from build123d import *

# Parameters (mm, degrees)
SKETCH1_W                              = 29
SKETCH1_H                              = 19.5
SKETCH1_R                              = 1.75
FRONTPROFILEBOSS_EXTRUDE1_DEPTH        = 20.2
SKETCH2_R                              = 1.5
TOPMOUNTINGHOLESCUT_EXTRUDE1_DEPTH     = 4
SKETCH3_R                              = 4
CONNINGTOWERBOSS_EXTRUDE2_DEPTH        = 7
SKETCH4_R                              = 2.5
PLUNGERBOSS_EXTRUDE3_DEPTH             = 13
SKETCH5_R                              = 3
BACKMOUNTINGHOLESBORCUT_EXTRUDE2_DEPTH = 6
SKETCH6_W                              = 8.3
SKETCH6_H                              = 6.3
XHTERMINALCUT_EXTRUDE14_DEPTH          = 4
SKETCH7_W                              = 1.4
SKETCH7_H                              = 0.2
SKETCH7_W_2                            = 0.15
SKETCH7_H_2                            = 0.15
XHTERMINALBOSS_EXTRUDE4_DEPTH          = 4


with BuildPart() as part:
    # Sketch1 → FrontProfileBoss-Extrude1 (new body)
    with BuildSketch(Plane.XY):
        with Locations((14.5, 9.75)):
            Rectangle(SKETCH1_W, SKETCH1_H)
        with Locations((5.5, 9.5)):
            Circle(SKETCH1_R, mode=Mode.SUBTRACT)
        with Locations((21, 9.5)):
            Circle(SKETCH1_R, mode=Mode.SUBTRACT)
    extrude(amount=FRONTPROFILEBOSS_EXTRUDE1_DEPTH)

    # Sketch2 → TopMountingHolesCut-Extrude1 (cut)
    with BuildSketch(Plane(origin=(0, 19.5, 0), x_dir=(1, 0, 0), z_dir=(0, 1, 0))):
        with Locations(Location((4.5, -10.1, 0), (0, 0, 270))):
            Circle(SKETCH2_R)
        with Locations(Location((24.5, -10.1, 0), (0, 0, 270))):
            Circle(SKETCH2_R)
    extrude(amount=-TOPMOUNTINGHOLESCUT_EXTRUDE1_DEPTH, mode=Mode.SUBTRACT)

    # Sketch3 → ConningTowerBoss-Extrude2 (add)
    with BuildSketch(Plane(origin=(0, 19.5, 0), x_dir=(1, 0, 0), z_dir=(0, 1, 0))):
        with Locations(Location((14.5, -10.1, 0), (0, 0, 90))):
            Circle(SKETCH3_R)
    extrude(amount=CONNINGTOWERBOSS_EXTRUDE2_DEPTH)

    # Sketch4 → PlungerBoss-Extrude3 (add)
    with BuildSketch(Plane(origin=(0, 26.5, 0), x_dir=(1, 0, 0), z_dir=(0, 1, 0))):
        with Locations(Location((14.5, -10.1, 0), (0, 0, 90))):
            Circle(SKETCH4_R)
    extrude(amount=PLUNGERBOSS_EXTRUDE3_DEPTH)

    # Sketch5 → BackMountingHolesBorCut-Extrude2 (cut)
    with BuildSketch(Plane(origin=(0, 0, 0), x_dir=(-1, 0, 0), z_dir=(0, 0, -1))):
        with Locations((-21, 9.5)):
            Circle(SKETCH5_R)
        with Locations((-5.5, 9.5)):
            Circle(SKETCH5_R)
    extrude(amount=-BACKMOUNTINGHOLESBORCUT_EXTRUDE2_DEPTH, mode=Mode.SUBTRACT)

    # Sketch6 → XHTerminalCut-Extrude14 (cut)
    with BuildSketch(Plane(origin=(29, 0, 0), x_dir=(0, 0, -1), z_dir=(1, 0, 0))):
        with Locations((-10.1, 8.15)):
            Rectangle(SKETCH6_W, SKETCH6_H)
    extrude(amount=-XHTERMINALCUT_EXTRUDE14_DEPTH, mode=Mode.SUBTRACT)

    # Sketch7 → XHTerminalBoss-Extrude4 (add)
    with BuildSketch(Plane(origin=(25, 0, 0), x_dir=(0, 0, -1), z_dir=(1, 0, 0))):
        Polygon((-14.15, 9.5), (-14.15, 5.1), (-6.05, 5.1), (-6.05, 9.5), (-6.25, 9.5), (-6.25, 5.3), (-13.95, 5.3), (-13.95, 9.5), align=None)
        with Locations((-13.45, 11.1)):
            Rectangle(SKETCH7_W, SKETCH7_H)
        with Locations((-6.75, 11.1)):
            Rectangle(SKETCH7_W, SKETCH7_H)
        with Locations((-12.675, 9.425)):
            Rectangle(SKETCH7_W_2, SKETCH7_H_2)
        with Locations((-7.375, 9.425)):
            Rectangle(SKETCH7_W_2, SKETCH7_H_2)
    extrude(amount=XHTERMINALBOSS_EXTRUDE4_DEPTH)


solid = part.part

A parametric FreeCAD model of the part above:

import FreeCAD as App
import Part
import Sketcher
from FreeCAD import Vector

doc = App.newDocument("Part")
body = doc.addObject("PartDesign::Body", "Body")

sketch1 = body.newObject("Sketcher::SketchObject", "Sketch")
sketch1.AttachmentSupport = (doc.getObject("XY_Plane"), [""])
sketch1.MapMode = "FlatFace"
sketch1.addGeometry([
    Part.LineSegment(Vector(0, 19.5, 0), Vector(0, 0, 0)),
    Part.LineSegment(Vector(0, 0, 0), Vector(29, 0, 0)),
    Part.LineSegment(Vector(29, 0, 0), Vector(29, 19.5, 0)),
    Part.LineSegment(Vector(29, 19.5, 0), Vector(0, 19.5, 0)),
    Part.Circle(Vector(5.5, 9.5, 0), Vector(0, 0, 1), 1.8),
    Part.Circle(Vector(21, 9.5, 0), Vector(0, 0, 1), 1.8),
], False)
sketch1.addConstraint([
    Sketcher.Constraint("Coincident", 0, 2, 1, 1),
    Sketcher.Constraint("Coincident", 1, 2, 2, 1),
    Sketcher.Constraint("Coincident", 2, 2, 3, 1),
    Sketcher.Constraint("Coincident", 3, 2, 0, 1),
    Sketcher.Constraint("Vertical", 0),
    Sketcher.Constraint("Horizontal", 1),
    Sketcher.Constraint("Vertical", 2),
    Sketcher.Constraint("Horizontal", 3),
    Sketcher.Constraint("Coincident", 0, 2, -1, 1),
    Sketcher.Constraint("Equal", 4, 5),
    Sketcher.Constraint("Horizontal", 4, 3, 5, 3),
    Sketcher.Constraint("Diameter", 4, 3.5),
    Sketcher.Constraint("DistanceX", 1, 1, 1, 2, 29.0),
    Sketcher.Constraint("DistanceY", 0, 2, 0, 1, 19.5),
    Sketcher.Constraint("DistanceX", -1, 1, 5, 3, 21.0),
    Sketcher.Constraint("DistanceY", 5, 3, 2, 2, 10.0),
    Sketcher.Constraint("DistanceX", -1, 1, 4, 3, 5.5),
])
pad1 = body.newObject("PartDesign::Pad", "Pad")
pad1.Profile = sketch1
pad1.Length = 20.2

sketch2 = body.newObject("Sketcher::SketchObject", "Sketch001")
sketch2.AttachmentSupport = (doc.getObject("XZ_Plane"), [""])
sketch2.MapMode = "FlatFace"
sketch2.AttachmentOffset = App.Placement(Vector(0, 0, -19.5), App.Rotation())
sketch2.addGeometry([
    Part.Circle(Vector(4.5, 10.1, 0), Vector(0, 0, 1), 1.5),
    Part.Circle(Vector(24.5, 10.1, 0), Vector(0, 0, 1), 1.5),
], False)
sketch2.addConstraint([
    Sketcher.Constraint("Equal", 0, 1),
    Sketcher.Constraint("Horizontal", 0, 3, 1, 3),
    Sketcher.Constraint("Diameter", 0, 3.0),
    Sketcher.Constraint("DistanceX", 0, 3, 1, 3, 20.0),
    Sketcher.Constraint("DistanceX", -1, 1, 0, 3, 4.5),
    Sketcher.Constraint("DistanceY", -1, 1, 0, 3, 10.1),
])
pocket1 = body.newObject("PartDesign::Pocket", "Pocket")
pocket1.Profile = sketch2
pocket1.Length = 4
pocket1.Reversed = True

sketch3 = body.newObject("Sketcher::SketchObject", "Sketch002")
sketch3.AttachmentSupport = (doc.getObject("XZ_Plane"), [""])
sketch3.MapMode = "FlatFace"
sketch3.AttachmentOffset = App.Placement(Vector(0, 0, -19.5), App.Rotation())
sketch3.addGeometry(Part.Circle(Vector(14.5, 10.1, 0), Vector(0, 0, 1), 4), False)
sketch3.addConstraint([
    Sketcher.Constraint("Diameter", 0, 8.0),
    Sketcher.Constraint("DistanceX", -1, 1, 0, 3, 14.5),
    Sketcher.Constraint("DistanceY", -1, 1, 0, 3, 10.1),
])
pad2 = body.newObject("PartDesign::Pad", "Pad001")
pad2.Profile = sketch3
pad2.Length = 7
pad2.Reversed = True

sketch4 = body.newObject("Sketcher::SketchObject", "Sketch003")
sketch4.AttachmentSupport = (doc.getObject("XZ_Plane"), [""])
sketch4.MapMode = "FlatFace"
sketch4.AttachmentOffset = App.Placement(Vector(0, 0, -26.5), App.Rotation())
sketch4.addGeometry(Part.Circle(Vector(14.5, 10.1, 0), Vector(0, 0, 1), 2.5), False)
sketch4.addConstraint([
    Sketcher.Constraint("Diameter", 0, 5.0),
    Sketcher.Constraint("DistanceX", -1, 1, 0, 3, 14.5),
    Sketcher.Constraint("DistanceY", -1, 1, 0, 3, 10.1),
])
pad3 = body.newObject("PartDesign::Pad", "Pad002")
pad3.Profile = sketch4
pad3.Length = 13
pad3.Reversed = True

sketch5 = body.newObject("Sketcher::SketchObject", "Sketch004")
sketch5.AttachmentSupport = (doc.getObject("XY_Plane"), [""])
sketch5.MapMode = "FlatFace"
sketch5.addGeometry([
    Part.Circle(Vector(21, 9.5, 0), Vector(0, 0, 1), 3),
    Part.Circle(Vector(5.5, 9.5, 0), Vector(0, 0, 1), 3),
], False)
sketch5.addConstraint([
    Sketcher.Constraint("Equal", 0, 1),
    Sketcher.Constraint("Horizontal", 0, 3, 1, 3),
    Sketcher.Constraint("Diameter", 0, 6.0),
    Sketcher.Constraint("DistanceX", -1, 1, 0, 3, 21.0),
    Sketcher.Constraint("DistanceY", -1, 1, 0, 3, 9.5),
    Sketcher.Constraint("DistanceX", -1, 1, 1, 3, 5.5),
])
pocket2 = body.newObject("PartDesign::Pocket", "Pocket001")
pocket2.Profile = sketch5
pocket2.Length = 6
pocket2.Reversed = True

sketch6 = body.newObject("Sketcher::SketchObject", "Sketch005")
sketch6.AttachmentSupport = (doc.getObject("YZ_Plane"), [""])
sketch6.MapMode = "FlatFace"
sketch6.AttachmentOffset = App.Placement(Vector(0, 0, 29), App.Rotation())
sketch6.addGeometry([
    Part.LineSegment(Vector(11, 14, 0), Vector(5, 14, 0)),
    Part.LineSegment(Vector(5, 14, 0), Vector(5, 6, 0)),
    Part.LineSegment(Vector(5, 6, 0), Vector(11, 6, 0)),
    Part.LineSegment(Vector(11, 6, 0), Vector(11, 14, 0)),
], False)
sketch6.addConstraint([
    Sketcher.Constraint("Coincident", 0, 2, 1, 1),
    Sketcher.Constraint("Coincident", 1, 2, 2, 1),
    Sketcher.Constraint("Coincident", 2, 2, 3, 1),
    Sketcher.Constraint("Coincident", 3, 2, 0, 1),
    Sketcher.Constraint("Horizontal", 0),
    Sketcher.Constraint("Vertical", 1),
    Sketcher.Constraint("Horizontal", 2),
    Sketcher.Constraint("Vertical", 3),
    Sketcher.Constraint("DistanceX", 0, 2, 0, 1, 6.3),
    Sketcher.Constraint("DistanceY", 1, 2, 1, 1, 8.3),
    Sketcher.Constraint("DistanceX", -1, 1, 0, 2, 5.0),
    Sketcher.Constraint("DistanceY", -1, 1, 0, 2, 14.25),
])
pocket3 = body.newObject("PartDesign::Pocket", "Pocket002")
pocket3.Profile = sketch6
pocket3.Length = 4

sketch7 = body.newObject("Sketcher::SketchObject", "Sketch006")
sketch7.AttachmentSupport = (doc.getObject("YZ_Plane"), [""])
sketch7.MapMode = "FlatFace"
sketch7.AttachmentOffset = App.Placement(Vector(0, 0, 25), App.Rotation())
sketch7.addGeometry([
    Part.LineSegment(Vector(9.5, 14.15, 0), Vector(5.1, 14.15, 0)),
    Part.LineSegment(Vector(5.1, 14.15, 0), Vector(5.1, 6.05, 0)),
    Part.LineSegment(Vector(5.1, 6.05, 0), Vector(9.5, 6.05, 0)),
    Part.LineSegment(Vector(9.5, 6.05, 0), Vector(9.5, 6.25, 0)),
    Part.LineSegment(Vector(9.5, 6.25, 0), Vector(5.3, 6.25, 0)),
    Part.LineSegment(Vector(5.3, 6.25, 0), Vector(5.3, 13.95, 0)),
    Part.LineSegment(Vector(5.3, 13.95, 0), Vector(9.5, 13.95, 0)),
    Part.LineSegment(Vector(9.5, 13.95, 0), Vector(9.5, 14.15, 0)),
    Part.LineSegment(Vector(11.2, 14.15, 0), Vector(11, 14.15, 0)),
    Part.LineSegment(Vector(11, 14.15, 0), Vector(11, 12.75, 0)),
    Part.LineSegment(Vector(11, 12.75, 0), Vector(11.2, 12.75, 0)),
    Part.LineSegment(Vector(11.2, 12.75, 0), Vector(11.2, 14.15, 0)),
    Part.LineSegment(Vector(11.2, 7.45, 0), Vector(11, 7.45, 0)),
    Part.LineSegment(Vector(11, 7.45, 0), Vector(11, 6.05, 0)),
    Part.LineSegment(Vector(11, 6.05, 0), Vector(11.2, 6.05, 0)),
    Part.LineSegment(Vector(11.2, 6.05, 0), Vector(11.2, 7.45, 0)),
    Part.LineSegment(Vector(9.5, 12.75, 0), Vector(9.35, 12.75, 0)),
    Part.LineSegment(Vector(9.35, 12.75, 0), Vector(9.35, 12.6, 0)),
    Part.LineSegment(Vector(9.35, 12.6, 0), Vector(9.5, 12.6, 0)),
    Part.LineSegment(Vector(9.5, 12.6, 0), Vector(9.5, 12.75, 0)),
    Part.LineSegment(Vector(9.5, 7.45, 0), Vector(9.35, 7.45, 0)),
    Part.LineSegment(Vector(9.35, 7.45, 0), Vector(9.35, 7.3, 0)),
    Part.LineSegment(Vector(9.35, 7.3, 0), Vector(9.5, 7.3, 0)),
    Part.LineSegment(Vector(9.5, 7.3, 0), Vector(9.5, 7.45, 0)),
], False)
sketch7.addConstraint([
    Sketcher.Constraint("Coincident", 0, 2, 1, 1),
    Sketcher.Constraint("Coincident", 1, 2, 2, 1),
    Sketcher.Constraint("Coincident", 2, 2, 3, 1),
    Sketcher.Constraint("Coincident", 3, 2, 4, 1),
    Sketcher.Constraint("Coincident", 4, 2, 5, 1),
    Sketcher.Constraint("Coincident", 5, 2, 6, 1),
    Sketcher.Constraint("Coincident", 6, 2, 7, 1),
    Sketcher.Constraint("Coincident", 7, 2, 0, 1),
    Sketcher.Constraint("Coincident", 8, 2, 9, 1),
    Sketcher.Constraint("Coincident", 9, 2, 10, 1),
    Sketcher.Constraint("Coincident", 10, 2, 11, 1),
    Sketcher.Constraint("Coincident", 11, 2, 8, 1),
    Sketcher.Constraint("Coincident", 12, 2, 13, 1),
    Sketcher.Constraint("Coincident", 13, 2, 14, 1),
    Sketcher.Constraint("Coincident", 14, 2, 15, 1),
    Sketcher.Constraint("Coincident", 15, 2, 12, 1),
    Sketcher.Constraint("Coincident", 16, 2, 17, 1),
    Sketcher.Constraint("Coincident", 17, 2, 18, 1),
    Sketcher.Constraint("Coincident", 18, 2, 19, 1),
    Sketcher.Constraint("Coincident", 19, 2, 16, 1),
    Sketcher.Constraint("Coincident", 20, 2, 21, 1),
    Sketcher.Constraint("Coincident", 21, 2, 22, 1),
    Sketcher.Constraint("Coincident", 22, 2, 23, 1),
    Sketcher.Constraint("Coincident", 23, 2, 20, 1),
    Sketcher.Constraint("Horizontal", 0),
    Sketcher.Constraint("Vertical", 1),
    Sketcher.Constraint("Horizontal", 2),
    Sketcher.Constraint("Vertical", 3),
    Sketcher.Constraint("Horizontal", 4),
    Sketcher.Constraint("Vertical", 5),
    Sketcher.Constraint("Horizontal", 6),
    Sketcher.Constraint("Vertical", 7),
    Sketcher.Constraint("Horizontal", 8),
    Sketcher.Constraint("Vertical", 9),
    Sketcher.Constraint("Horizontal", 10),
    Sketcher.Constraint("Vertical", 11),
    Sketcher.Constraint("Horizontal", 12),
    Sketcher.Constraint("Vertical", 13),
    Sketcher.Constraint("Horizontal", 14),
    Sketcher.Constraint("Vertical", 15),
    Sketcher.Constraint("Horizontal", 16),
    Sketcher.Constraint("Vertical", 17),
    Sketcher.Constraint("Horizontal", 18),
    Sketcher.Constraint("Vertical", 19),
    Sketcher.Constraint("Horizontal", 20),
    Sketcher.Constraint("Vertical", 21),
    Sketcher.Constraint("Horizontal", 22),
    Sketcher.Constraint("Vertical", 23),
    Sketcher.Constraint("Horizontal", 7, 2, 8, 2),
    Sketcher.Constraint("Horizontal", 2, 2, 13, 2),
    Sketcher.Constraint("Horizontal", 10, 2, 16, 2),
    Sketcher.Constraint("Horizontal", 15, 2, 20, 2),
    Sketcher.Constraint("Vertical", 3, 2, 6, 2),
    Sketcher.Constraint("Vertical", 9, 2, 12, 2),
    Sketcher.Constraint("Vertical", 11, 2, 14, 2),
    Sketcher.Constraint("Vertical", 7, 2, 18, 2),
    Sketcher.Constraint("Vertical", 17, 2, 20, 2),
    Sketcher.Constraint("Vertical", 19, 2, 22, 2),
    Sketcher.Constraint("Equal", 14, 3),
    Sketcher.Constraint("Equal", 3, 7),
    Sketcher.Constraint("Equal", 11, 13),
    Sketcher.Constraint("Equal", 22, 17),
    Sketcher.Constraint("Equal", 19, 21),
    Sketcher.Constraint("DistanceX", 0, 2, 0, 1, 4.4),
    Sketcher.Constraint("DistanceX", 4, 2, 4, 1, 4.2),
    Sketcher.Constraint("DistanceX", 8, 2, 8, 1, 0.2),
    Sketcher.Constraint("DistanceY", 1, 2, 1, 1, 8.1),
    Sketcher.Constraint("DistanceY", 9, 2, 9, 1, 1.4),
    Sketcher.Constraint("DistanceX", -1, 1, 8, 2, 11.0),
    Sketcher.Constraint("DistanceX", 16, 2, 16, 1, 0.15),
    Sketcher.Constraint("DistanceX", -1, 1, 0, 2, 5.1),
    Sketcher.Constraint("DistanceY", -1, 1, 17, 2, 12.6),
])
pad4 = body.newObject("PartDesign::Pad", "Pad003")
pad4.Profile = sketch7
pad4.Length = 4

doc.recompute()
